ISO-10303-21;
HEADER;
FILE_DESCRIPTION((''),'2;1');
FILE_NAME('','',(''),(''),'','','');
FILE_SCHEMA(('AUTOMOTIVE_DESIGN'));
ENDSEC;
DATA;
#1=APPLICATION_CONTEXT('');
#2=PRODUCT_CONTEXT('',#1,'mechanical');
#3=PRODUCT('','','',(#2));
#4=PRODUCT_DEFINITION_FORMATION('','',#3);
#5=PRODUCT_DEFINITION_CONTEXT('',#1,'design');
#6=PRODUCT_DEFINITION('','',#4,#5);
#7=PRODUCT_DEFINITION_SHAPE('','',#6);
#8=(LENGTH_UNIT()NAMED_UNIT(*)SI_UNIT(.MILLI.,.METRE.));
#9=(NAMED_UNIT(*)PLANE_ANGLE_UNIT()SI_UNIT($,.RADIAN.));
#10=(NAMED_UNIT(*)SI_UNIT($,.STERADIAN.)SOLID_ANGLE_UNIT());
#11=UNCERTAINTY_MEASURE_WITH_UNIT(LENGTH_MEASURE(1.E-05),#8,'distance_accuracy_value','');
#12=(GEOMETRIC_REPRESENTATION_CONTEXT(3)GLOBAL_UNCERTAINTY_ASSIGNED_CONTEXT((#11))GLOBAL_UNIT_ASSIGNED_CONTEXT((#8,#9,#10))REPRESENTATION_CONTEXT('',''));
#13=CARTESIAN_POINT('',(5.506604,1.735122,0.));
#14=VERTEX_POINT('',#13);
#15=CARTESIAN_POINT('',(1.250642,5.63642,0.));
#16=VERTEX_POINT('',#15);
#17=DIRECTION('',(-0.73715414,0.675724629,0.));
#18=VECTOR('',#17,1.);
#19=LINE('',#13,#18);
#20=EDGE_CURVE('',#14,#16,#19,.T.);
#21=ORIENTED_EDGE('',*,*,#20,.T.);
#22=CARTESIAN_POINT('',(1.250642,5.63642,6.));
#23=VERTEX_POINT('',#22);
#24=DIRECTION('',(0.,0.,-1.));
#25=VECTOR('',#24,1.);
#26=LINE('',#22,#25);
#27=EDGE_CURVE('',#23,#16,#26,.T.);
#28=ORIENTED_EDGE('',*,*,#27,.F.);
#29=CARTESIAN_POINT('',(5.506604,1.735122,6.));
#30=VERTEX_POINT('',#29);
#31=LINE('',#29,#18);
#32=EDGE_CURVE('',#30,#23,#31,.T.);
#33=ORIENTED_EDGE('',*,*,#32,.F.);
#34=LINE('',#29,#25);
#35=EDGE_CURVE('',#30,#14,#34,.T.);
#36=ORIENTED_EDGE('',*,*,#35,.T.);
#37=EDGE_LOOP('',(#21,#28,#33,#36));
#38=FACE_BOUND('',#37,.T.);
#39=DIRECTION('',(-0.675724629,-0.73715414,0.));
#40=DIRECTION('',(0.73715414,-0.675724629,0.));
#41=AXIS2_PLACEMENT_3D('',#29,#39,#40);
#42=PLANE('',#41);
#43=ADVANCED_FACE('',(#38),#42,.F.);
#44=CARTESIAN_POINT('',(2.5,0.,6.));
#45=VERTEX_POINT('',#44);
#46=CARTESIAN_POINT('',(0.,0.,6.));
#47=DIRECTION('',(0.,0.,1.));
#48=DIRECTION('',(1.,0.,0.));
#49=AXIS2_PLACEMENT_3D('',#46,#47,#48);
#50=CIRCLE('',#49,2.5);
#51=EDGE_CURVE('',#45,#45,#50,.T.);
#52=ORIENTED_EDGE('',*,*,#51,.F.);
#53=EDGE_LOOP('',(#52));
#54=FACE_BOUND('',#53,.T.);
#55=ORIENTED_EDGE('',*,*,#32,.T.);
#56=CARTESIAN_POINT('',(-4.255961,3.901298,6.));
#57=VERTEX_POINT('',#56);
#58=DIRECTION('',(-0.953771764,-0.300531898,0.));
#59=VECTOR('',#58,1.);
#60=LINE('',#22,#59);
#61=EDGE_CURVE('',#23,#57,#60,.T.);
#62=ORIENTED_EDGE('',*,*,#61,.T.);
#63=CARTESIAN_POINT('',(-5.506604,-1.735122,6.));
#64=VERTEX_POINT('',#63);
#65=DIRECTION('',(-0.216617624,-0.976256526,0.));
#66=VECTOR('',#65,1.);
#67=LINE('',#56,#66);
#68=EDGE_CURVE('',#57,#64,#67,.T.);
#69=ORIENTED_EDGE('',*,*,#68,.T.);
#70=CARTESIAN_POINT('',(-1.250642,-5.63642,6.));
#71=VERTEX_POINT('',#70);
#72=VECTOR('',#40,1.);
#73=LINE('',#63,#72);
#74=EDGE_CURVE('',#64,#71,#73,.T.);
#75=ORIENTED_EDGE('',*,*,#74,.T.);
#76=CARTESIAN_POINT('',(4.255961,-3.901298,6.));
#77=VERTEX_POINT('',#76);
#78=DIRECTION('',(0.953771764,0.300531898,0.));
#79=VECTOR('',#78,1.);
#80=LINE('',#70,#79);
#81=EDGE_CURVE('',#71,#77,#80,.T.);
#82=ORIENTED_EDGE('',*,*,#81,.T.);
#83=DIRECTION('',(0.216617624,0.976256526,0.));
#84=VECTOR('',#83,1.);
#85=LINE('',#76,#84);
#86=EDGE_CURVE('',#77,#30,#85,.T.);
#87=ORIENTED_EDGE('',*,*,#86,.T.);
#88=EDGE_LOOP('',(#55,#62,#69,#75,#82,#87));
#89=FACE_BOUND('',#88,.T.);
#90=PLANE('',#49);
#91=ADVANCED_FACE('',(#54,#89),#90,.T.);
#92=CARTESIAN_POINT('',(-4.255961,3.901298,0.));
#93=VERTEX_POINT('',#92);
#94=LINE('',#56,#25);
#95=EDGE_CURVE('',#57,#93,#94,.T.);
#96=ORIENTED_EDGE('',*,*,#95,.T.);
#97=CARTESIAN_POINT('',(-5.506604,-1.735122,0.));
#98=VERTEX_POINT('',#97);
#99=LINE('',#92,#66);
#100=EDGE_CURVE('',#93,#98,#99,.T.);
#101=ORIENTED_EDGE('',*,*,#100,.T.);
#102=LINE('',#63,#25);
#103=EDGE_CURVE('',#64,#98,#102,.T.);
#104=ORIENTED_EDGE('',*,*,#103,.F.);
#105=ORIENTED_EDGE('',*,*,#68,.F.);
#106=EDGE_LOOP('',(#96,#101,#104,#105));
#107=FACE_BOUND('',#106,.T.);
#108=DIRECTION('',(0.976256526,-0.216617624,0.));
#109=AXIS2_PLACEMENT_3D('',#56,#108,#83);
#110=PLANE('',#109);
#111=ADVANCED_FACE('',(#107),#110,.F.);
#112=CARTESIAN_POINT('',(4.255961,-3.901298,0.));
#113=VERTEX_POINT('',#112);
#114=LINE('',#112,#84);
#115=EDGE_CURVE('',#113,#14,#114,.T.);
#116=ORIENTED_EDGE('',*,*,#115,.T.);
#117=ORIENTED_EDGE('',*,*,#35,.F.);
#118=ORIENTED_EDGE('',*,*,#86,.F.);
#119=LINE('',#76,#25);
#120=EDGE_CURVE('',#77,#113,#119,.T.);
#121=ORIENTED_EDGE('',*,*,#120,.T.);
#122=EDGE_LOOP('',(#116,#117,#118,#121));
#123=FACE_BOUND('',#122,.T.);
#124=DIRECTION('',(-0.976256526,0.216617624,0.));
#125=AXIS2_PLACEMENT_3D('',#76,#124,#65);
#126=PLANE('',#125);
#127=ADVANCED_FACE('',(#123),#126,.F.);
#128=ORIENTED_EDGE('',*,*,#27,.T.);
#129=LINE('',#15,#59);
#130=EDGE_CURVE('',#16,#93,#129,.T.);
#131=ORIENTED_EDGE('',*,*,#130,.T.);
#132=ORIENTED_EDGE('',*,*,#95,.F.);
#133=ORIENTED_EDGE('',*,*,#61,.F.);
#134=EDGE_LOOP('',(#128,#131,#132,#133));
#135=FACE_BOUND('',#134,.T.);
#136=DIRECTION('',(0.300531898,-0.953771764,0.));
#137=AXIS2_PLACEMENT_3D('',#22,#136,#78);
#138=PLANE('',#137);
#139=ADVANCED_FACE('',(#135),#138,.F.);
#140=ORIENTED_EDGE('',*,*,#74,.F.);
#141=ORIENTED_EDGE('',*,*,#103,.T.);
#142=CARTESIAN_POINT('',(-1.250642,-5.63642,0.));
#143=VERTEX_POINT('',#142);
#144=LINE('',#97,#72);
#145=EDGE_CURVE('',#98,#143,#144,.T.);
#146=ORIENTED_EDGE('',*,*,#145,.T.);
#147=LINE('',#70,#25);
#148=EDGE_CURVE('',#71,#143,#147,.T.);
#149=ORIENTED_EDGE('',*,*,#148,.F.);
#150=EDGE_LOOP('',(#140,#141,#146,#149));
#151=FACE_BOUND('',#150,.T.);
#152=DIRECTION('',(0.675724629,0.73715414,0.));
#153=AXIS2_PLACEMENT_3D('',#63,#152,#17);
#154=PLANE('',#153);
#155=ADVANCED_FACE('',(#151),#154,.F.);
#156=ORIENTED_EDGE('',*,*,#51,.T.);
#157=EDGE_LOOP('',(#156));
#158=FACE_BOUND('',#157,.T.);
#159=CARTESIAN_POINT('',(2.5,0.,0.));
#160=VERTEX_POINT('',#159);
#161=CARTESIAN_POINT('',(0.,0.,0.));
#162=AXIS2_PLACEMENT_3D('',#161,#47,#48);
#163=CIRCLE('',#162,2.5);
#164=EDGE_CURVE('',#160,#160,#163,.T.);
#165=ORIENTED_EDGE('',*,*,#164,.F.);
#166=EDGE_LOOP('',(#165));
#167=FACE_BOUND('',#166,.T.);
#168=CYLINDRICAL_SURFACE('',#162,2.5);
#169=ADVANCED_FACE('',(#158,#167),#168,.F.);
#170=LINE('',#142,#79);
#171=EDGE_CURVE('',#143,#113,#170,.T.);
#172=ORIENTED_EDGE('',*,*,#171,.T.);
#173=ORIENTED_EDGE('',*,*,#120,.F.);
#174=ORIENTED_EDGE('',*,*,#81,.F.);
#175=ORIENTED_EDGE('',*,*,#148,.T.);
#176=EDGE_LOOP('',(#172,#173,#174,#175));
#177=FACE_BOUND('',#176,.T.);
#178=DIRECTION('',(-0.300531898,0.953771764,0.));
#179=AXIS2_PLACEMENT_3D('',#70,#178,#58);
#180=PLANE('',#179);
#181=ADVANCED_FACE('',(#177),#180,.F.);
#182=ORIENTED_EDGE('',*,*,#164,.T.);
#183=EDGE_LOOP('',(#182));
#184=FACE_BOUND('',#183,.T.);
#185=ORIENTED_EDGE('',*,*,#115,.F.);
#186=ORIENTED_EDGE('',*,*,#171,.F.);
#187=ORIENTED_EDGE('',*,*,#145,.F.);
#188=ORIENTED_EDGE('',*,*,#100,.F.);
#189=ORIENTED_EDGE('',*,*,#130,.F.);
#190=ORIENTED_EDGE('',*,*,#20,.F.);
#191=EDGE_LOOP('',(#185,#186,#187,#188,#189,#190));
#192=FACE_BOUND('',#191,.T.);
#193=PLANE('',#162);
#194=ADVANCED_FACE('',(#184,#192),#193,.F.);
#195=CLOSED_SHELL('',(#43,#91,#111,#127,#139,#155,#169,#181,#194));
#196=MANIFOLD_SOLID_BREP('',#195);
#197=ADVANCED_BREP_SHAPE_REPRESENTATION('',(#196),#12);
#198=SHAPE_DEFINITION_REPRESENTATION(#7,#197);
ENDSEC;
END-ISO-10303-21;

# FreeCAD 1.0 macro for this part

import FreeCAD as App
import Part
import Sketcher

V = App.Vector

doc = App.newDocument("Part")
body = doc.addObject("PartDesign::Body", "Body")

sketch1 = doc.addObject("Sketcher::SketchObject", "Sketch")
body.addObject(sketch1)
sketch1.AttachmentSupport = (doc.XY_Plane, [""])
sketch1.MapMode = "FlatFace"
sketch1.addGeometry(Part.LineSegment(V(4, -4, 0), V(6, 2, 0)), False)
sketch1.addGeometry(Part.LineSegment(V(6, 2, 0), V(1, 6, 0)), False)
sketch1.addGeometry(Part.LineSegment(V(1, 6, 0), V(-4, 4, 0)), False)
sketch1.addGeometry(Part.LineSegment(V(-4, 4, 0), V(-6, -2, 0)), False)
sketch1.addGeometry(Part.LineSegment(V(-6, -2, 0), V(-1, -6, 0)), False)
sketch1.addGeometry(Part.LineSegment(V(-1, -6, 0), V(4, -4, 0)), False)
sketch1.addConstraint(Sketcher.Constraint("Coincident", 0, 2, 1, 1))
sketch1.addConstraint(Sketcher.Constraint("Coincident", 1, 2, 2, 1))
sketch1.addConstraint(Sketcher.Constraint("Coincident", 2, 2, 3, 1))
sketch1.addConstraint(Sketcher.Constraint("Coincident", 3, 2, 4, 1))
sketch1.addConstraint(Sketcher.Constraint("Coincident", 4, 2, 5, 1))
sketch1.addConstraint(Sketcher.Constraint("Coincident", 5, 2, 0, 1))
sketch1.addConstraint(Sketcher.Constraint("Symmetric", 0, 2, 3, 2, -1, 1))
sketch1.addConstraint(Sketcher.Constraint("Symmetric", 1, 2, 4, 2, -1, 1))
sketch1.addConstraint(Sketcher.Constraint("Symmetric", 2, 2, 5, 2, -1, 1))
sketch1.addConstraint(Sketcher.Constraint("Equal", 0, 1))
sketch1.addConstraint(Sketcher.Constraint("Equal", 1, 2))
sketch1.addConstraint(Sketcher.Constraint("DistanceY", -1, 1, 0, 2, 1.735122))
sketch1.addConstraint(Sketcher.Constraint("DistanceY", -1, 1, 1, 2, 5.63642))
sketch1.addConstraint(Sketcher.Constraint("DistanceX", 2, 2, -1, 1, 4.255961))
sketch1.addConstraint(Sketcher.Constraint("DistanceX", 1, 2, 0, 2, 4.255961))
pad1 = doc.addObject("PartDesign::Pad", "Pad")
body.addObject(pad1)
pad1.Profile = sketch1
pad1.Length = 6

sketch2 = doc.addObject("Sketcher::SketchObject", "Sketch001")
body.addObject(sketch2)
sketch2.AttachmentSupport = (doc.XY_Plane, [""])
sketch2.MapMode = "FlatFace"
sketch2.AttachmentOffset = App.Placement(V(0, 0, 6), App.Rotation())
sketch2.addGeometry(Part.Circle(V(0, 0, 0), V(0, 0, 1), 2.5), False)
sketch2.addConstraint(Sketcher.Constraint("Coincident", 0, 3, -1, 1))
sketch2.addConstraint(Sketcher.Constraint("Diameter", 0, 5.0))
pocket1 = doc.addObject("PartDesign::Pocket", "Pocket")
body.addObject(pocket1)
pocket1.Profile = sketch2
pocket1.Type = "ThroughAll"

doc.recompute()
